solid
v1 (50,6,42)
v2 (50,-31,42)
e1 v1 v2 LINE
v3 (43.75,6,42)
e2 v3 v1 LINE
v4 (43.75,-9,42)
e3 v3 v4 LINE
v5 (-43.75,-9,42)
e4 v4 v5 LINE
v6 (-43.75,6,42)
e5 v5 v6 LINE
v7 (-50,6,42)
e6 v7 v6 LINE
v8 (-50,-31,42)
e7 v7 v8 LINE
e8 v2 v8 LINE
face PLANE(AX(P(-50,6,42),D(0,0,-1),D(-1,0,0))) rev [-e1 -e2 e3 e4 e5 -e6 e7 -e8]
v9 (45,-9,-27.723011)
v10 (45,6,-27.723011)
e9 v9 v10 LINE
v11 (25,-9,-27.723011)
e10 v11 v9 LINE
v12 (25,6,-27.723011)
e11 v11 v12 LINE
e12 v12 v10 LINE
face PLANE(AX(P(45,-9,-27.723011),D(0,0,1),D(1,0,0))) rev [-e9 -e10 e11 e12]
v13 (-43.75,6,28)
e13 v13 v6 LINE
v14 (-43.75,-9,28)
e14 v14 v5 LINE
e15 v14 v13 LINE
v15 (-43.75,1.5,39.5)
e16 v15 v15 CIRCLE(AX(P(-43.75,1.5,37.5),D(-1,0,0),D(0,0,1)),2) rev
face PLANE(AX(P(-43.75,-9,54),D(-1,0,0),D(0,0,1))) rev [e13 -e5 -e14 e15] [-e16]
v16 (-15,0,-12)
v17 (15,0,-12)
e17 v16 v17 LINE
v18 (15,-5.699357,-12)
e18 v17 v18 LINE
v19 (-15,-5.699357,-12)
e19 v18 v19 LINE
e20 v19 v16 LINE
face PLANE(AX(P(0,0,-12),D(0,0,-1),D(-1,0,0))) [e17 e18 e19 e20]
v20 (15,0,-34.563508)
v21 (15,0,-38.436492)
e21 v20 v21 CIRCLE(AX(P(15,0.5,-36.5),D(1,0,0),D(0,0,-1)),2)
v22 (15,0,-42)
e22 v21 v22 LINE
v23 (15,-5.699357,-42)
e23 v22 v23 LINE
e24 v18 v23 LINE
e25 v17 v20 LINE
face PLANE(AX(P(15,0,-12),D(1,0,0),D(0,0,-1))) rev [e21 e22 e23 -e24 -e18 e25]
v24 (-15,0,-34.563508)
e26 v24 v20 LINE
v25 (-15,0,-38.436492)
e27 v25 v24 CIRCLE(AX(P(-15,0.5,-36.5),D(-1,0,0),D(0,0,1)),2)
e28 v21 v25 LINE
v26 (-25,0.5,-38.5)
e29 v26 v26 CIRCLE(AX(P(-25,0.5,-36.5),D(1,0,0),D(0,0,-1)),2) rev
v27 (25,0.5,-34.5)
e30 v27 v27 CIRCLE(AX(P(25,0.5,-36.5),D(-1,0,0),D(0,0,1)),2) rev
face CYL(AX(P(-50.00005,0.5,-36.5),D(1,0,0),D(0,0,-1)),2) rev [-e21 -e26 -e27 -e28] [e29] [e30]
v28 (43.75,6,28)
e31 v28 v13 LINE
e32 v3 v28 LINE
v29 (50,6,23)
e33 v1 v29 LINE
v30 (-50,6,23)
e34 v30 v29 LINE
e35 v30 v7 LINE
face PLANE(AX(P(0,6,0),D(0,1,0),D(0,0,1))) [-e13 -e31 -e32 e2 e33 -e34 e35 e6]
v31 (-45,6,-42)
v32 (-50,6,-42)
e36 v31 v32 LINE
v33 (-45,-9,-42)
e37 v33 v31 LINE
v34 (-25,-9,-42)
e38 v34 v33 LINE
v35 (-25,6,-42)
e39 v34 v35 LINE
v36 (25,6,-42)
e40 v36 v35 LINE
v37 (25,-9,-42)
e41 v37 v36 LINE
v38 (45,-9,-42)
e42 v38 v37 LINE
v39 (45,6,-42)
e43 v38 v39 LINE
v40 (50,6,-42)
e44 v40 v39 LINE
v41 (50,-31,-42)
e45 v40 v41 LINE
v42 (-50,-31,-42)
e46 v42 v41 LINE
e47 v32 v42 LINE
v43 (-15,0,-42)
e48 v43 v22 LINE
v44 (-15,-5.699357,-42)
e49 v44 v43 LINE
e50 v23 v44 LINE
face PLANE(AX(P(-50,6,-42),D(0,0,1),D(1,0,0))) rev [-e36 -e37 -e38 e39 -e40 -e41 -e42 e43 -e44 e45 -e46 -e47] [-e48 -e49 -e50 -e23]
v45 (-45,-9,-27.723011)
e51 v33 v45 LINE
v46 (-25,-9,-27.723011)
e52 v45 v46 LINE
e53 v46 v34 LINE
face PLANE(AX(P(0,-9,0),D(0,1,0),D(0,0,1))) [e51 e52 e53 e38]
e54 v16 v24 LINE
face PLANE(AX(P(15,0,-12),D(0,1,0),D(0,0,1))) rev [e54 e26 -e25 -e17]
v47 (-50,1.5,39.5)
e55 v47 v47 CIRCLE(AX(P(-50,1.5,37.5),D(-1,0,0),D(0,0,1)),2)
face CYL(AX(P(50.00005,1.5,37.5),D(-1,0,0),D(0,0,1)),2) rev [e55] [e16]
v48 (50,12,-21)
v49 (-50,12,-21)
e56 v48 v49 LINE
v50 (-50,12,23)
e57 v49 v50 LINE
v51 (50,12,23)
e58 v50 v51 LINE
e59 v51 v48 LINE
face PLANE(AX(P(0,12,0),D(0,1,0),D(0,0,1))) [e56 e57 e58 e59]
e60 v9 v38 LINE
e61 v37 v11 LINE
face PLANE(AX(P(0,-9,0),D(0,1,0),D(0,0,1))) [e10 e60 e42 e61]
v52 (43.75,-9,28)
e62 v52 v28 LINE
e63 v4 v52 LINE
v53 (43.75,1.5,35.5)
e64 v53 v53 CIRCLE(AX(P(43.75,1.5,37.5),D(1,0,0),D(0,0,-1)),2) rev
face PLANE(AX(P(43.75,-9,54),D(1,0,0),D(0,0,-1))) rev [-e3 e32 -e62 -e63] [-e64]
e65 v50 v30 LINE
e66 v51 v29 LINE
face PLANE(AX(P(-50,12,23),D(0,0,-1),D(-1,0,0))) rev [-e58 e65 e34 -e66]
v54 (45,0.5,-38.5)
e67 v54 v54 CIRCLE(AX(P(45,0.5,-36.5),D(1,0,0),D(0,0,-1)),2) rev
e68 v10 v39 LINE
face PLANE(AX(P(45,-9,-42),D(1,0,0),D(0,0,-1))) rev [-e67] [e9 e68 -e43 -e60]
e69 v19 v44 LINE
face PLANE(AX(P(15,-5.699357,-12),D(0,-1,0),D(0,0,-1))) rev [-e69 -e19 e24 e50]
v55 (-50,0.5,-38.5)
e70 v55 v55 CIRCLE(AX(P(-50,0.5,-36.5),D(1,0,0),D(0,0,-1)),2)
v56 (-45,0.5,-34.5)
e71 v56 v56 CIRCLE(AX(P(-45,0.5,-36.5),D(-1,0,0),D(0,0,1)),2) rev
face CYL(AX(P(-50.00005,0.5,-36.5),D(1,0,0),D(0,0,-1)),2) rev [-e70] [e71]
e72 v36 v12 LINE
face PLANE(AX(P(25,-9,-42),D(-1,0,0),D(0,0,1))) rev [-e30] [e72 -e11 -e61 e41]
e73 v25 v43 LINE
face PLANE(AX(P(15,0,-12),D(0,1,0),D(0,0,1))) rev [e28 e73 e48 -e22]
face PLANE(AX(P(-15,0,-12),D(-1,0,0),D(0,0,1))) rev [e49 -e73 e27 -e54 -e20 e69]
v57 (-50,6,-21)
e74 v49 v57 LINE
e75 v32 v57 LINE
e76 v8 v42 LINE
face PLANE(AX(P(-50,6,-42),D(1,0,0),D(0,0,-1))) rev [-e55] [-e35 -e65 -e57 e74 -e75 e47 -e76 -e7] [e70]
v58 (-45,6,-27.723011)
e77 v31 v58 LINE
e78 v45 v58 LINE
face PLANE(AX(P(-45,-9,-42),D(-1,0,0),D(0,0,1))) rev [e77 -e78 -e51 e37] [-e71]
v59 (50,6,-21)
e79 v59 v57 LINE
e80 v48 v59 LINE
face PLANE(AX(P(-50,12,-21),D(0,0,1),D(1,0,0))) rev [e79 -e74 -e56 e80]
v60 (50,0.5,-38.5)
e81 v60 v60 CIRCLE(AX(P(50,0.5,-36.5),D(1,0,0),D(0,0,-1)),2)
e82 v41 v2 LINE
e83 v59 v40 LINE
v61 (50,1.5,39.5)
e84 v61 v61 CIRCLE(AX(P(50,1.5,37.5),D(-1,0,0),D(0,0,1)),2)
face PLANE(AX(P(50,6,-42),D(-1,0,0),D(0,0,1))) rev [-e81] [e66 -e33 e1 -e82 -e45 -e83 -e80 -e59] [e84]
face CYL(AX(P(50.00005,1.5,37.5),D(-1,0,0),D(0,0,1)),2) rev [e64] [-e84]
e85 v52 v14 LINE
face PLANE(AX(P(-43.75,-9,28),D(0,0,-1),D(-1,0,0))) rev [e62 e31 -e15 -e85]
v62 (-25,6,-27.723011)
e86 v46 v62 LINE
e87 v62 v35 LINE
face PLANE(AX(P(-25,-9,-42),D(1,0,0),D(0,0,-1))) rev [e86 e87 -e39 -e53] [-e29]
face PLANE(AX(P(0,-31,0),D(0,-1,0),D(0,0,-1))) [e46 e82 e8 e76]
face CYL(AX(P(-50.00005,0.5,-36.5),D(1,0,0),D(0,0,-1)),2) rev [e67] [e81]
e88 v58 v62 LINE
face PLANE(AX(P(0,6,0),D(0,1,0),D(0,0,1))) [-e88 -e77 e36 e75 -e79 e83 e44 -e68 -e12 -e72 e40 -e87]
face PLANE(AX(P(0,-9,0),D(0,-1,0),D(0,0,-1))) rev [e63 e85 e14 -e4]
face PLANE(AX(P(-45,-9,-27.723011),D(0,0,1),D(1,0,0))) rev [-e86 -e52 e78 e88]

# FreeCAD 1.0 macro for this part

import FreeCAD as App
import Part
import Sketcher

V = App.Vector

doc = App.newDocument("Part")
body = doc.addObject("PartDesign::Body", "Body")

sketch1 = body.newObject("Sketcher::SketchObject", "Sketch")
sketch1.AttachmentSupport = (doc.getObject("XZ_Plane"), [""])
sketch1.MapMode = "FlatFace"
sketch1.addGeometry([
    Part.LineSegment(V(-50, -42, 0), V(-50, 42, 0)),
    Part.LineSegment(V(-50, 42, 0), V(50, 42, 0)),
    Part.LineSegment(V(50, 42, 0), V(50, -42, 0)),
    Part.LineSegment(V(50, -42, 0), V(-50, -42, 0)),
], False)
sketch1.addConstraint([
    Sketcher.Constraint("Coincident", 0, 2, 1, 1),
    Sketcher.Constraint("Coincident", 1, 2, 2, 1),
    Sketcher.Constraint("Coincident", 2, 2, 3, 1),
    Sketcher.Constraint("Coincident", 3, 2, 0, 1),
    Sketcher.Constraint("Vertical", 0),
    Sketcher.Constraint("Horizontal", 1),
    Sketcher.Constraint("Vertical", 2),
    Sketcher.Constraint("Horizontal", 3),
    Sketcher.Constraint("Symmetric", 0, 2, 2, 2, -1, 1),
    Sketcher.Constraint("DistanceX", 1, 1, 1, 2, 100.0),
    Sketcher.Constraint("DistanceY", 0, 1, 0, 2, 84.0),
])
pad1 = body.newObject("PartDesign::Pad", "Pad")
pad1.Profile = sketch1
pad1.Length = 6
pad1.Reversed = True

sketch2 = body.newObject("Sketcher::SketchObject", "Sketch001")
sketch2.AttachmentSupport = (doc.getObject("XZ_Plane"), [""])
sketch2.MapMode = "FlatFace"
sketch2.AttachmentOffset = App.Placement(V(0, 0, -6), App.Rotation())
sketch2.addGeometry([
    Part.LineSegment(V(-50, -21, 0), V(-50, 23, 0)),
    Part.LineSegment(V(-50, 23, 0), V(50, 23, 0)),
    Part.LineSegment(V(50, 23, 0), V(50, -21, 0)),
    Part.LineSegment(V(50, -21, 0), V(-50, -21, 0)),
], False)
sketch2.addConstraint([
    Sketcher.Constraint("Coincident", 0, 2, 1, 1),
    Sketcher.Constraint("Coincident", 1, 2, 2, 1),
    Sketcher.Constraint("Coincident", 2, 2, 3, 1),
    Sketcher.Constraint("Coincident", 3, 2, 0, 1),
    Sketcher.Constraint("Vertical", 0),
    Sketcher.Constraint("Horizontal", 1),
    Sketcher.Constraint("Vertical", 2),
    Sketcher.Constraint("Horizontal", 3),
    Sketcher.Constraint("DistanceX", 1, 1, 1, 2, 100.0),
    Sketcher.Constraint("DistanceY", 0, 1, 0, 2, 44.0),
    Sketcher.Constraint("DistanceX", 0, 2, -1, 1, 50.0),
    Sketcher.Constraint("DistanceY", -1, 1, 0, 2, 23.0),
])
pad2 = body.newObject("PartDesign::Pad", "Pad001")
pad2.Profile = sketch2
pad2.Length = 6
pad2.Reversed = True

sketch3 = body.newObject("Sketcher::SketchObject", "Sketch002")
sketch3.AttachmentSupport = (doc.getObject("XZ_Plane"), [""])
sketch3.MapMode = "FlatFace"
sketch3.addGeometry([
    Part.LineSegment(V(-50, 42, 0), V(-50, -42, 0)),
    Part.LineSegment(V(-50, -42, 0), V(50, -42, 0)),
    Part.LineSegment(V(50, -42, 0), V(50, 42, 0)),
    Part.LineSegment(V(50, 42, 0), V(-50, 42, 0)),
], False)
sketch3.addConstraint([
    Sketcher.Constraint("Coincident", 0, 2, 1, 1),
    Sketcher.Constraint("Coincident", 1, 2, 2, 1),
    Sketcher.Constraint("Coincident", 2, 2, 3, 1),
    Sketcher.Constraint("Coincident", 3, 2, 0, 1),
    Sketcher.Constraint("Vertical", 0),
    Sketcher.Constraint("Horizontal", 1),
    Sketcher.Constraint("Vertical", 2),
    Sketcher.Constraint("Horizontal", 3),
    Sketcher.Constraint("Symmetric", 0, 2, 2, 2, -1, 1),
    Sketcher.Constraint("DistanceX", 1, 1, 1, 2, 100.0),
    Sketcher.Constraint("DistanceY", 0, 2, 0, 1, 84.0),
])
pad3 = body.newObject("PartDesign::Pad", "Pad002")
pad3.Profile = sketch3
pad3.Length = 31

sketch4 = body.newObject("Sketcher::SketchObject", "Sketch003")
sketch4.AttachmentSupport = (doc.getObject("XY_Plane"), [""])
sketch4.MapMode = "FlatFace"
sketch4.AttachmentOffset = App.Placement(V(0, 0, -42), App.Rotation())
sketch4.addGeometry([
    Part.LineSegment(V(15, 0, 0), V(15, -6, 0)),
    Part.LineSegment(V(15, -6, 0), V(-15, -6, 0)),
    Part.LineSegment(V(-15, -6, 0), V(-15, 0, 0)),
    Part.LineSegment(V(-15, 0, 0), V(15, 0, 0)),
], False)
sketch4.addConstraint([
    Sketcher.Constraint("Coincident", 0, 2, 1, 1),
    Sketcher.Constraint("Coincident", 1, 2, 2, 1),
    Sketcher.Constraint("Coincident", 2, 2, 3, 1),
    Sketcher.Constraint("Coincident", 3, 2, 0, 1),
    Sketcher.Constraint("Vertical", 0),
    Sketcher.Constraint("Horizontal", 1),
    Sketcher.Constraint("Vertical", 2),
    Sketcher.Constraint("Horizontal", 3),
    Sketcher.Constraint("Symmetric", 2, 2, 3, 2, -1, 1),
    Sketcher.Constraint("DistanceX", 1, 2, 1, 1, 30.0),
    Sketcher.Constraint("DistanceY", 0, 2, 0, 1, 5.699357),
])
pocket1 = body.newObject("PartDesign::Pocket", "Pocket")
pocket1.Profile = sketch4
pocket1.Length = 30
pocket1.Reversed = True

sketch5 = body.newObject("Sketcher::SketchObject", "Sketch004")
sketch5.AttachmentSupport = (doc.getObject("YZ_Plane"), [""])
sketch5.MapMode = "FlatFace"
sketch5.AttachmentOffset = App.Placement(V(0, 0, -50), App.Rotation())
sketch5.addGeometry(Part.Circle(V(1.5, 37.5, 0), V(0, 0, 1), 2), False)
sketch5.addConstraint([
    Sketcher.Constraint("Diameter", 0, 4.0),
    Sketcher.Constraint("DistanceX", -1, 1, 0, 3, 1.5),
    Sketcher.Constraint("DistanceY", -1, 1, 0, 3, 37.5),
])
pocket2 = body.newObject("PartDesign::Pocket", "Pocket001")
pocket2.Profile = sketch5
pocket2.Type = "ThroughAll"
pocket2.Reversed = True

sketch6 = body.newObject("Sketcher::SketchObject", "Sketch005")
sketch6.AttachmentSupport = (doc.getObject("XZ_Plane"), [""])
sketch6.MapMode = "FlatFace"
sketch6.AttachmentOffset = App.Placement(V(0, 0, -6), App.Rotation())
sketch6.addGeometry([
    Part.LineSegment(V(-44, 28, 0), V(-44, 54, 0)),
    Part.LineSegment(V(-44, 54, 0), V(44, 54, 0)),
    Part.LineSegment(V(44, 54, 0), V(44, 28, 0)),
    Part.LineSegment(V(44, 28, 0), V(-44, 28, 0)),
], False)
sketch6.addConstraint([
    Sketcher.Constraint("Coincident", 0, 2, 1, 1),
    Sketcher.Constraint("Coincident", 1, 2, 2, 1),
    Sketcher.Constraint("Coincident", 2, 2, 3, 1),
    Sketcher.Constraint("Coincident", 3, 2, 0, 1),
    Sketcher.Constraint("Vertical", 0),
    Sketcher.Constraint("Horizontal", 1),
    Sketcher.Constraint("Vertical", 2),
    Sketcher.Constraint("Horizontal", 3),
    Sketcher.Constraint("DistanceY", 0, 1, 0, 2, 26.0),
    Sketcher.Constraint("DistanceX", 1, 1, 1, 2, 87.5),
    Sketcher.Constraint("DistanceY", -1, 1, 0, 2, 54.0),
    Sketcher.Constraint("DistanceX", 0, 2, -1, 1, 43.75),
])
pocket3 = body.newObject("PartDesign::Pocket", "Pocket002")
pocket3.Profile = sketch6
pocket3.Length = 15
pocket3.Reversed = True

sketch7 = body.newObject("Sketcher::SketchObject", "Sketch006")
sketch7.AttachmentSupport = (doc.getObject("YZ_Plane"), [""])
sketch7.MapMode = "FlatFace"
sketch7.AttachmentOffset = App.Placement(V(0, 0, 50), App.Rotation())
sketch7.addGeometry(Part.Circle(V(0.5, -36.5, 0), V(0, 0, 1), 2), False)
sketch7.addConstraint([
    Sketcher.Constraint("Diameter", 0, 4.0),
    Sketcher.Constraint("DistanceX", -1, 1, 0, 3, 0.5),
    Sketcher.Constraint("DistanceY", 0, 3, -1, 1, 36.5),
])
pocket4 = body.newObject("PartDesign::Pocket", "Pocket003")
pocket4.Profile = sketch7
pocket4.Type = "ThroughAll"

sketch8 = body.newObject("Sketcher::SketchObject", "Sketch007")
sketch8.AttachmentSupport = (doc.getObject("XZ_Plane"), [""])
sketch8.MapMode = "FlatFace"
sketch8.AttachmentOffset = App.Placement(V(0, 0, -6), App.Rotation())
sketch8.addGeometry([
    Part.LineSegment(V(-45, -42, 0), V(-45, -28, 0)),
    Part.LineSegment(V(-45, -28, 0), V(-25, -28, 0)),
    Part.LineSegment(V(-25, -28, 0), V(-25, -42, 0)),
    Part.LineSegment(V(-25, -42, 0), V(-45, -42, 0)),
    Part.LineSegment(V(25, -42, 0), V(25, -28, 0)),
    Part.LineSegment(V(25, -28, 0), V(45, -28, 0)),
    Part.LineSegment(V(45, -28, 0), V(45, -42, 0)),
    Part.LineSegment(V(45, -42, 0), V(25, -42, 0)),
], False)
sketch8.addConstraint([
    Sketcher.Constraint("Coincident", 0, 2, 1, 1),
    Sketcher.Constraint("Coincident", 1, 2, 2, 1),
    Sketcher.Constraint("Coincident", 2, 2, 3, 1),
    Sketcher.Constraint("Coincident", 3, 2, 0, 1),
    Sketcher.Constraint("Coincident", 4, 2, 5, 1),
    Sketcher.Constraint("Coincident", 5, 2, 6, 1),
    Sketcher.Constraint("Coincident", 6, 2, 7, 1),
    Sketcher.Constraint("Coincident", 7, 2, 4, 1),
    Sketcher.Constraint("Vertical", 0),
    Sketcher.Constraint("Horizontal", 1),
    Sketcher.Constraint("Vertical", 2),
    Sketcher.Constraint("Horizontal", 3),
    Sketcher.Constraint("Vertical", 4),
    Sketcher.Constraint("Horizontal", 5),
    Sketcher.Constraint("Vertical", 6),
    Sketcher.Constraint("Horizontal", 7),
    Sketcher.Constraint("Symmetric", 1, 2, 4, 2, -2),
    Sketcher.Constraint("Symmetric", 3, 2, 6, 2, -2),
    Sketcher.Constraint("DistanceX", 1, 1, 1, 2, 20.0),
    Sketcher.Constraint("DistanceX", 0, 2, -1, 1, 45.0),
    Sketcher.Constraint("DistanceY", 2, 2, -1, 1, 42.0),
    Sketcher.Constraint("DistanceY", 0, 1, 0, 2, 14.276989),
])
pocket5 = body.newObject("PartDesign::Pocket", "Pocket004")
pocket5.Profile = sketch8
pocket5.Length = 15
pocket5.Reversed = True

doc.recompute()
